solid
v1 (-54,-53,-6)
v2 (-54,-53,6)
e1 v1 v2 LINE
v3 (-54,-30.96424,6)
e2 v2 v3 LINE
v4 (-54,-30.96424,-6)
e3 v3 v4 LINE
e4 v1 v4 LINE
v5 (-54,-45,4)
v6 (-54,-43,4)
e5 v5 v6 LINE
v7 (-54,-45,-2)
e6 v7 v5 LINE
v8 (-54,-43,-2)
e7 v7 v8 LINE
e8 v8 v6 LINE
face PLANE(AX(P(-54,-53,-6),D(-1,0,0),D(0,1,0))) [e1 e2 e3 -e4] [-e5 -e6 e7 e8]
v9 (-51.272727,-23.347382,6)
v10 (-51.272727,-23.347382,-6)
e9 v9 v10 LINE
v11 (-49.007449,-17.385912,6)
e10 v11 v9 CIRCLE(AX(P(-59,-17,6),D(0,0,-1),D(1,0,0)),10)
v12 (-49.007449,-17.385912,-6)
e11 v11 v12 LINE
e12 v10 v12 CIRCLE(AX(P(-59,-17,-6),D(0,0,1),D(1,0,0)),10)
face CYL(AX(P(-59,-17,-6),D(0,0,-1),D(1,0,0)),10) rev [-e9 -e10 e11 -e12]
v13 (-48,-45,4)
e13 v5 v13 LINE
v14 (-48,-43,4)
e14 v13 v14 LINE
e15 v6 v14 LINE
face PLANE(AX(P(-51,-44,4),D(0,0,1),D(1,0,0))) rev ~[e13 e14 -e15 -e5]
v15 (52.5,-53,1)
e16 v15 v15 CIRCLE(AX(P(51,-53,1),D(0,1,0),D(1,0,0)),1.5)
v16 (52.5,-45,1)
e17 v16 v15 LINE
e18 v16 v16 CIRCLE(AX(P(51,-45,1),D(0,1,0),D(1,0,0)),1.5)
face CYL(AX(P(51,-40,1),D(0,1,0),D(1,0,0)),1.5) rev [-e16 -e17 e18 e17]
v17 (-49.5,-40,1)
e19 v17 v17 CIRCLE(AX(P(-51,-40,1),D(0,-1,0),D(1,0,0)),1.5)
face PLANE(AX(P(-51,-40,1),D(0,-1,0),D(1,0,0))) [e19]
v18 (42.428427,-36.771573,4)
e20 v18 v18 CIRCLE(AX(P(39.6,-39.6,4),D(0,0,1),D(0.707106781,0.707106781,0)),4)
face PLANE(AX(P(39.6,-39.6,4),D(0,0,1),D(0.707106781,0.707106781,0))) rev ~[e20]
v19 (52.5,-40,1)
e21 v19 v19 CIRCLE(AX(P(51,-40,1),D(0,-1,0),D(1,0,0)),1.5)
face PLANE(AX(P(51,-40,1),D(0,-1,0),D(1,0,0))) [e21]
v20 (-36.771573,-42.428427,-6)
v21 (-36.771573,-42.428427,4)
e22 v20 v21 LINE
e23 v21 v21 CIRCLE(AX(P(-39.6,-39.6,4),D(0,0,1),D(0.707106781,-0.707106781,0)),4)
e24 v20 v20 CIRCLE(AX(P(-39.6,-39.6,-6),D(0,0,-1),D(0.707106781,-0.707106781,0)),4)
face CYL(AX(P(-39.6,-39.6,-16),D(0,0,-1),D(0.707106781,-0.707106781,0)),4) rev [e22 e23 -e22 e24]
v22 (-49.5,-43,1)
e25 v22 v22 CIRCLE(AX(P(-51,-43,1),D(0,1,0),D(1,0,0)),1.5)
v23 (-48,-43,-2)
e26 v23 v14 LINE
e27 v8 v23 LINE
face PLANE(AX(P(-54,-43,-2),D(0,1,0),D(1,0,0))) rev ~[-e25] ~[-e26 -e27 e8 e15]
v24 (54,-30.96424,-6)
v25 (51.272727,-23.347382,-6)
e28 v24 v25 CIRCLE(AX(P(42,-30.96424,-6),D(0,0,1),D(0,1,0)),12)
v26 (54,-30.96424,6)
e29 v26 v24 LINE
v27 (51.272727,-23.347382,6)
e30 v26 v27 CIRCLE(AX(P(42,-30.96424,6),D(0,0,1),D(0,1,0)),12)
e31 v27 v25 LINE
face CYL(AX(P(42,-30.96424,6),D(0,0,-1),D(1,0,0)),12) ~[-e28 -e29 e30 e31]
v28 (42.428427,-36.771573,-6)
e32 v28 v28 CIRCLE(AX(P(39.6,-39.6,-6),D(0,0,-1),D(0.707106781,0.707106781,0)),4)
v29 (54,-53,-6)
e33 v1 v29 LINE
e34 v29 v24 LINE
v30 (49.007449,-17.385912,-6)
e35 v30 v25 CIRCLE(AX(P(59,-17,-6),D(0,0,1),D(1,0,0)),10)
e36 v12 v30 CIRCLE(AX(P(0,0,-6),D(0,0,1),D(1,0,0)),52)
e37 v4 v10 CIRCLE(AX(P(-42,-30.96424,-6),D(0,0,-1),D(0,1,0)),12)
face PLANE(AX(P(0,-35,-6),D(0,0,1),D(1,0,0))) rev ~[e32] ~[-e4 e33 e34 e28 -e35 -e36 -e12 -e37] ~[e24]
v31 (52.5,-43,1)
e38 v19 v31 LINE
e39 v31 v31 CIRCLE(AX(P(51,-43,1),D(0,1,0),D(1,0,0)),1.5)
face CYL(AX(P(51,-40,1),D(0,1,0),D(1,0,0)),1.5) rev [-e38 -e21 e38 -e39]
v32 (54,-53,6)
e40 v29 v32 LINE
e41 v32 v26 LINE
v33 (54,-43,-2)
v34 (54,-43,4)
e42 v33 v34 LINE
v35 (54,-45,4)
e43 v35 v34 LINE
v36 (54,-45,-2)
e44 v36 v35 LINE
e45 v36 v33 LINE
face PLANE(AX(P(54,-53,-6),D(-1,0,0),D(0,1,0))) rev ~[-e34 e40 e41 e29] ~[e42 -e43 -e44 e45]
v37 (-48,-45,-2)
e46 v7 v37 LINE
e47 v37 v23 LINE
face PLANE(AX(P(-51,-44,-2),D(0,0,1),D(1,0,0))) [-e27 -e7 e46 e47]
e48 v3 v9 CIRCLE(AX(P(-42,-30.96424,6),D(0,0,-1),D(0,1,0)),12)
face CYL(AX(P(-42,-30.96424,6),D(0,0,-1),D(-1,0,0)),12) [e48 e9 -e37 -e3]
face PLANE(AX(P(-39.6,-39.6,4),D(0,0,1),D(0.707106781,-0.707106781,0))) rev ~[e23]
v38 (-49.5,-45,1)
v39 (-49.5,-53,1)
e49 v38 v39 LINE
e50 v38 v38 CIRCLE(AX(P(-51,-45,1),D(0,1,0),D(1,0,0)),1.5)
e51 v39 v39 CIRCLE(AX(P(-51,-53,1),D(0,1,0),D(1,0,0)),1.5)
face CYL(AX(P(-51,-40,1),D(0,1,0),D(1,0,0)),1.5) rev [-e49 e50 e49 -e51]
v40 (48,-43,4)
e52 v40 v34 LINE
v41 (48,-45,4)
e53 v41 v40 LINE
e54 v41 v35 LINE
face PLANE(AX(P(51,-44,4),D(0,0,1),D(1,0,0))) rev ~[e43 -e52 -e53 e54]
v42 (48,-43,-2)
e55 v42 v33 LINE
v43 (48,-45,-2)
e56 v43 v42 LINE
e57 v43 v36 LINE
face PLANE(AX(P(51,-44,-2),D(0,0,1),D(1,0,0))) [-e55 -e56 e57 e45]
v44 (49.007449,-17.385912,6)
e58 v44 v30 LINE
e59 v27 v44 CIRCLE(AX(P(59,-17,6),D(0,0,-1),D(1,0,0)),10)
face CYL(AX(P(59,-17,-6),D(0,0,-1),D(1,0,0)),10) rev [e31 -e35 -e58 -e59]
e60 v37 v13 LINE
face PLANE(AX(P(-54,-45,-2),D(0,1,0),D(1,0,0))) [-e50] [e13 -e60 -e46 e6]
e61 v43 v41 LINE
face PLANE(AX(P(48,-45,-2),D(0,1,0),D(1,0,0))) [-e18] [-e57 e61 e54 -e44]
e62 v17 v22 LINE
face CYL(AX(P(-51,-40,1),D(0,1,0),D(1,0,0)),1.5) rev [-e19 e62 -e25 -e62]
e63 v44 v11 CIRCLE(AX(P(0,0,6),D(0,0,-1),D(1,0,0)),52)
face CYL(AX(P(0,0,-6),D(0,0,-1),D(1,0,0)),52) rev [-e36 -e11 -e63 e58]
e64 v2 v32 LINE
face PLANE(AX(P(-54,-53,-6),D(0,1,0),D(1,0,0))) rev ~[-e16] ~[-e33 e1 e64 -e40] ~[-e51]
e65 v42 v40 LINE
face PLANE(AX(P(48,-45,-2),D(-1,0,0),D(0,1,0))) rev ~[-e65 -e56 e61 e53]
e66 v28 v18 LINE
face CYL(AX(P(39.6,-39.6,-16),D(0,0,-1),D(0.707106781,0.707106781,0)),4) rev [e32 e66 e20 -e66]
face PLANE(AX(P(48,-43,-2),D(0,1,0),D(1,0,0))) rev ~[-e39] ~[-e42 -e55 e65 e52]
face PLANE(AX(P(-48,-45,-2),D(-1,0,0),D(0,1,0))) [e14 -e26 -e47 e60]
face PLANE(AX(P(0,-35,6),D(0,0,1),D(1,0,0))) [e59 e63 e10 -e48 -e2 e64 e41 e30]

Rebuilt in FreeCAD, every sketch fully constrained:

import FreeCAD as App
import Part
import Sketcher

V = App.Vector
Q = App.Units.Quantity


def edges_at(feature, points):
    """Names of the edges that pass closest to the given points."""
    edges = feature.Shape.Edges
    near = lambda p: min(range(len(edges)), key=lambda i: edges[i].distToShape(Part.Vertex(*p))[0])
    return sorted({f"Edge{near(p) + 1}" for p in points})

doc = App.newDocument("Part")
params = doc.addObject("Spreadsheet::Sheet", "Params")
for row, (alias, value) in enumerate([
    ("sketch1_diameter", "3 mm"),
    ("pad1_length", "20 mm"),
    ("sketch2_diameter", "3 mm"),
    ("pad2_length", "20 mm"),
    ("sketch3_diameter", "3 mm"),
    ("pad3_length", "20 mm"),
    ("sketch4_diameter", "3 mm"),
    ("pad4_length", "20 mm"),
    ("sketch5_width", "6 mm"),
    ("sketch5_height", "2 mm"),
    ("pad5_length", "6 mm"),
    ("sketch6_width", "6 mm"),
    ("sketch6_height", "2 mm"),
    ("pad6_length", "6 mm"),
    ("sketch7_width", "6 mm"),
    ("sketch7_height", "2 mm"),
    ("pad7_length", "6 mm"),
    ("sketch8_width", "6 mm"),
    ("sketch8_height", "2 mm"),
    ("pad8_length", "6 mm"),
    ("sketch9_diameter", "8 mm"),
    ("pad9_length", "20 mm"),
    ("sketch10_diameter", "8 mm"),
    ("pad10_length", "20 mm"),
    ("sketch11_diameter", "20 mm"),
    ("pad11_length", "40 mm"),
    ("sketch12_diameter", "20 mm"),
    ("pad12_length", "40 mm"),
    ("sketch13_diameter", "104 mm"),
    ("pad13_length", "20 mm"),
    ("sketch14_width", "108 mm"),
    ("sketch14_height", "36 mm"),
    ("pad14_length", "12 mm"),
    ("fillet_radius", "12 mm"),
], start=1):
    params.set(f"A{row}", alias)
    params.set(f"B{row}", "=" + value)
    params.setAlias(f"B{row}", alias)

body = doc.addObject("PartDesign::Body", "Body")

# Sketch on XZ plane
sketch1 = body.newObject("Sketcher::SketchObject", "Sketch")
sketch1.AttachmentSupport = (doc.getObject("XZ_Plane"), [""])
sketch1.MapMode = "FlatFace"
sketch1.AttachmentOffset = App.Placement(V(0, 0, 40), App.Rotation())
sketch1.addGeometry(Part.Circle(V(20, -5, 0), V(0, 0, 1), 1.5), False)
sketch1.addConstraint([
    Sketcher.Constraint("Diameter", 0, Q("3 mm")),
    Sketcher.Constraint("DistanceX", -1, 1, 0, 3, Q("20 mm")),
    Sketcher.Constraint("DistanceY", 0, 3, -1, 1, Q("5 mm")),
])
sketch1.setExpression("Constraints[0]", "Params.sketch1_diameter")
pad1 = body.newObject("PartDesign::Pad", "Pad")
pad1.Profile = sketch1
pad1.setExpression("Length", "Params.pad1_length")
body2 = doc.addObject("PartDesign::Body", "Body001")

# Sketch on XZ plane
sketch2 = body2.newObject("Sketcher::SketchObject", "Sketch001")
sketch2.AttachmentSupport = (doc.getObject("XZ_Plane001"), [""])
sketch2.MapMode = "FlatFace"
sketch2.AttachmentOffset = App.Placement(V(0, 0, 40), App.Rotation())
sketch2.addGeometry(Part.Circle(V(51, 7, 0), V(0, 0, 1), 1.5), False)
sketch2.addConstraint([
    Sketcher.Constraint("Diameter", 0, Q("3 mm")),
    Sketcher.Constraint("DistanceX", -1, 1, 0, 3, Q("51 mm")),
    Sketcher.Constraint("DistanceY", -1, 1, 0, 3, Q("7 mm")),
])
sketch2.setExpression("Constraints[0]", "Params.sketch2_diameter")
pad2 = body2.newObject("PartDesign::Pad", "Pad001")
pad2.Profile = sketch2
pad2.setExpression("Length", "Params.pad2_length")
body3 = doc.addObject("PartDesign::Body", "Body002")

# Sketch on XZ plane
sketch3 = body3.newObject("Sketcher::SketchObject", "Sketch002")
sketch3.AttachmentSupport = (doc.getObject("XZ_Plane002"), [""])
sketch3.MapMode = "FlatFace"
sketch3.AttachmentOffset = App.Placement(V(0, 0, 40), App.Rotation())
sketch3.addGeometry(Part.Circle(V(-51, 7, 0), V(0, 0, 1), 1.5), False)
sketch3.addConstraint([
    Sketcher.Constraint("Diameter", 0, Q("3 mm")),
    Sketcher.Constraint("DistanceX", 0, 3, -1, 1, Q("51 mm")),
    Sketcher.Constraint("DistanceY", -1, 1, 0, 3, Q("7 mm")),
])
sketch3.setExpression("Constraints[0]", "Params.sketch3_diameter")
pad3 = body3.newObject("PartDesign::Pad", "Pad002")
pad3.Profile = sketch3
pad3.setExpression("Length", "Params.pad3_length")
body4 = doc.addObject("PartDesign::Body", "Body003")
body4.AllowCompound = True

# Sketch on XZ plane
sketch4 = body4.newObject("Sketcher::SketchObject", "Sketch003")
sketch4.AttachmentSupport = (doc.getObject("XZ_Plane003"), [""])
sketch4.MapMode = "FlatFace"
sketch4.AttachmentOffset = App.Placement(V(0, 0, 40), App.Rotation())
sketch4.addGeometry(Part.Circle(V(-20, -5, 0), V(0, 0, 1), 1.5), False)
sketch4.addConstraint([
    Sketcher.Constraint("Diameter", 0, Q("3 mm")),
    Sketcher.Constraint("DistanceX", 0, 3, -1, 1, Q("20 mm")),
    Sketcher.Constraint("DistanceY", 0, 3, -1, 1, Q("5 mm")),
])
sketch4.setExpression("Constraints[0]", "Params.sketch4_diameter")
pad4 = body4.newObject("PartDesign::Pad", "Pad003")
pad4.Profile = sketch4
pad4.setExpression("Length", "Params.pad4_length")
doc.recompute()

boolean = body4.newObject("PartDesign::Boolean", "Boolean")
boolean.Type = "Fuse"
boolean.addObjects([body])
doc.recompute()

boolean2 = body4.newObject("PartDesign::Boolean", "Boolean001")
boolean2.Type = "Fuse"
boolean2.addObjects([body2])
doc.recompute()

boolean3 = body4.newObject("PartDesign::Boolean", "Boolean002")
boolean3.Type = "Fuse"
boolean3.addObjects([body3])
body5 = doc.addObject("PartDesign::Body", "Body004")

# Sketch on XY plane
sketch5 = body5.newObject("Sketcher::SketchObject", "Sketch004")
sketch5.AttachmentSupport = (doc.getObject("XY_Plane004"), [""])
sketch5.MapMode = "FlatFace"
sketch5.AttachmentOffset = App.Placement(V(0, 0, -8), App.Rotation())
sketch5.addGeometry([
    Part.LineSegment(V(17, -45, 0), V(17, -47, 0)),
    Part.LineSegment(V(17, -47, 0), V(23, -47, 0)),
    Part.LineSegment(V(23, -47, 0), V(23, -45, 0)),
    Part.LineSegment(V(23, -45, 0), V(17, -45, 0)),
], False)
sketch5.addConstraint([
    Sketcher.Constraint("Coincident", 0, 2, 1, 1),
    Sketcher.Constraint("Coincident", 1, 2, 2, 1),
    Sketcher.Constraint("Coincident", 2, 2, 3, 1),
    Sketcher.Constraint("Coincident", 3, 2, 0, 1),
    Sketcher.Constraint("Vertical", 0),
    Sketcher.Constraint("Horizontal", 1),
    Sketcher.Constraint("Vertical", 2),
    Sketcher.Constraint("Horizontal", 3),
    Sketcher.Constraint("DistanceX", 1, 1, 1, 2, Q("6 mm")),
    Sketcher.Constraint("DistanceY", 0, 2, 0, 1, Q("2 mm")),
    Sketcher.Constraint("DistanceX", -1, 1, 0, 2, Q("17 mm")),
    Sketcher.Constraint("DistanceY", 0, 2, -1, 1, Q("47 mm")),
])
sketch5.setExpression("Constraints[8]", "Params.sketch5_width")
sketch5.setExpression("Constraints[9]", "Params.sketch5_height")
pad5 = body5.newObject("PartDesign::Pad", "Pad004")
pad5.Profile = sketch5
pad5.setExpression("Length", "Params.pad5_length")
body6 = doc.addObject("PartDesign::Body", "Body005")

# Sketch on XY plane
sketch6 = body6.newObject("Sketcher::SketchObject", "Sketch005")
sketch6.AttachmentSupport = (doc.getObject("XY_Plane005"), [""])
sketch6.MapMode = "FlatFace"
sketch6.AttachmentOffset = App.Placement(V(0, 0, 4), App.Rotation())
sketch6.addGeometry([
    Part.LineSegment(V(48, -43, 0), V(48, -45, 0)),
    Part.LineSegment(V(48, -45, 0), V(54, -45, 0)),
    Part.LineSegment(V(54, -45, 0), V(54, -43, 0)),
    Part.LineSegment(V(54, -43, 0), V(48, -43, 0)),
], False)
sketch6.addConstraint([
    Sketcher.Constraint("Coincident", 0, 2, 1, 1),
    Sketcher.Constraint("Coincident", 1, 2, 2, 1),
    Sketcher.Constraint("Coincident", 2, 2, 3, 1),
    Sketcher.Constraint("Coincident", 3, 2, 0, 1),
    Sketcher.Constraint("Vertical", 0),
    Sketcher.Constraint("Horizontal", 1),
    Sketcher.Constraint("Vertical", 2),
    Sketcher.Constraint("Horizontal", 3),
    Sketcher.Constraint("DistanceX", 1, 1, 1, 2, Q("6 mm")),
    Sketcher.Constraint("DistanceY", 0, 2, 0, 1, Q("2 mm")),
    Sketcher.Constraint("DistanceX", -1, 1, 0, 2, Q("48 mm")),
    Sketcher.Constraint("DistanceY", 0, 2, -1, 1, Q("45 mm")),
])
sketch6.setExpression("Constraints[8]", "Params.sketch6_width")
sketch6.setExpression("Constraints[9]", "Params.sketch6_height")
pad6 = body6.newObject("PartDesign::Pad", "Pad005")
pad6.Profile = sketch6
pad6.setExpression("Length", "Params.pad6_length")
body7 = doc.addObject("PartDesign::Body", "Body006")

# Sketch on XY plane
sketch7 = body7.newObject("Sketcher::SketchObject", "Sketch006")
sketch7.AttachmentSupport = (doc.getObject("XY_Plane006"), [""])
sketch7.MapMode = "FlatFace"
sketch7.AttachmentOffset = App.Placement(V(0, 0, 4), App.Rotation())
sketch7.addGeometry([
    Part.LineSegment(V(-54, -43, 0), V(-54, -45, 0)),
    Part.LineSegment(V(-54, -45, 0), V(-48, -45, 0)),
    Part.LineSegment(V(-48, -45, 0), V(-48, -43, 0)),
    Part.LineSegment(V(-48, -43, 0), V(-54, -43, 0)),
], False)
sketch7.addConstraint([
    Sketcher.Constraint("Coincident", 0, 2, 1, 1),
    Sketcher.Constraint("Coincident", 1, 2, 2, 1),
    Sketcher.Constraint("Coincident", 2, 2, 3, 1),
    Sketcher.Constraint("Coincident", 3, 2, 0, 1),
    Sketcher.Constraint("Vertical", 0),
    Sketcher.Constraint("Horizontal", 1),
    Sketcher.Constraint("Vertical", 2),
    Sketcher.Constraint("Horizontal", 3),
    Sketcher.Constraint("DistanceX", 1, 1, 1, 2, Q("6 mm")),
    Sketcher.Constraint("DistanceY", 0, 2, 0, 1, Q("2 mm")),
    Sketcher.Constraint("DistanceX", 0, 2, -1, 1, Q("54 mm")),
    Sketcher.Constraint("DistanceY", 0, 2, -1, 1, Q("45 mm")),
])
sketch7.setExpression("Constraints[8]", "Params.sketch7_width")
sketch7.setExpression("Constraints[9]", "Params.sketch7_height")
pad7 = body7.newObject("PartDesign::Pad", "Pad006")
pad7.Profile = sketch7
pad7.setExpression("Length", "Params.pad7_length")
body8 = doc.addObject("PartDesign::Body", "Body007")
body8.AllowCompound = True

# Sketch on XY plane
sketch8 = body8.newObject("Sketcher::SketchObject", "Sketch007")
sketch8.AttachmentSupport = (doc.getObject("XY_Plane007"), [""])
sketch8.MapMode = "FlatFace"
sketch8.AttachmentOffset = App.Placement(V(0, 0, -8), App.Rotation())
sketch8.addGeometry([
    Part.LineSegment(V(-23, -45, 0), V(-23, -47, 0)),
    Part.LineSegment(V(-23, -47, 0), V(-17, -47, 0)),
    Part.LineSegment(V(-17, -47, 0), V(-17, -45, 0)),
    Part.LineSegment(V(-17, -45, 0), V(-23, -45, 0)),
], False)
sketch8.addConstraint([
    Sketcher.Constraint("Coincident", 0, 2, 1, 1),
    Sketcher.Constraint("Coincident", 1, 2, 2, 1),
    Sketcher.Constraint("Coincident", 2, 2, 3, 1),
    Sketcher.Constraint("Coincident", 3, 2, 0, 1),
    Sketcher.Constraint("Vertical", 0),
    Sketcher.Constraint("Horizontal", 1),
    Sketcher.Constraint("Vertical", 2),
    Sketcher.Constraint("Horizontal", 3),
    Sketcher.Constraint("DistanceX", 1, 1, 1, 2, Q("6 mm")),
    Sketcher.Constraint("DistanceY", 0, 2, 0, 1, Q("2 mm")),
    Sketcher.Constraint("DistanceX", 0, 2, -1, 1, Q("23 mm")),
    Sketcher.Constraint("DistanceY", 0, 2, -1, 1, Q("47 mm")),
])
sketch8.setExpression("Constraints[8]", "Params.sketch8_width")
sketch8.setExpression("Constraints[9]", "Params.sketch8_height")
pad8 = body8.newObject("PartDesign::Pad", "Pad007")
pad8.Profile = sketch8
pad8.setExpression("Length", "Params.pad8_length")
doc.recompute()

boolean4 = body8.newObject("PartDesign::Boolean", "Boolean003")
boolean4.Type = "Fuse"
boolean4.addObjects([body5])
doc.recompute()

boolean5 = body8.newObject("PartDesign::Boolean", "Boolean004")
boolean5.Type = "Fuse"
boolean5.addObjects([body6])
doc.recompute()

boolean6 = body8.newObject("PartDesign::Boolean", "Boolean005")
boolean6.Type = "Fuse"
boolean6.addObjects([body7])
body9 = doc.addObject("PartDesign::Body", "Body008")

# Sketch on XY plane
sketch9 = body9.newObject("Sketcher::SketchObject", "Sketch008")
sketch9.AttachmentSupport = (doc.getObject("XY_Plane008"), [""])
sketch9.MapMode = "FlatFace"
sketch9.addGeometry(Part.Circle(V(0, 0, 0), V(0, 0, 1), 4), False)
sketch9.addConstraint([
    Sketcher.Constraint("Coincident", 0, 3, -1, 1),
    Sketcher.Constraint("Diameter", 0, Q("8 mm")),
])
sketch9.setExpression("Constraints[1]", "Params.sketch9_diameter")
pad9 = body9.newObject("PartDesign::Pad", "Pad008")
pad9.Profile = sketch9
pad9.setExpression("Length", "Params.pad9_length")
body10 = doc.addObject("PartDesign::Body", "Body009")
doc.recompute()

body9.Placement = App.Placement(V(39.6, -39.6, -10), App.Rotation(V(0, 0, 1), 45))
boolean7 = body10.newObject("PartDesign::Boolean", "Boolean006")
boolean7.Type = "Fuse"
boolean7.addObjects([body9])
body11 = doc.addObject("PartDesign::Body", "Body010")

# Sketch on XY plane
sketch10 = body11.newObject("Sketcher::SketchObject", "Sketch009")
sketch10.AttachmentSupport = (doc.getObject("XY_Plane010"), [""])
sketch10.MapMode = "FlatFace"
sketch10.addGeometry(Part.Circle(V(0, 0, 0), V(0, 0, 1), 4), False)
sketch10.addConstraint([
    Sketcher.Constraint("Coincident", 0, 3, -1, 1),
    Sketcher.Constraint("Diameter", 0, Q("8 mm")),
])
sketch10.setExpression("Constraints[1]", "Params.sketch10_diameter")
pad10 = body11.newObject("PartDesign::Pad", "Pad009")
pad10.Profile = sketch10
pad10.setExpression("Length", "Params.pad10_length")
body12 = doc.addObject("PartDesign::Body", "Body011")
body12.AllowCompound = True
doc.recompute()

body11.Placement = App.Placement(V(-39.6, -39.6, -10), App.Rotation(V(0, 0, -1), 45))
boolean8 = body12.newObject("PartDesign::Boolean", "Boolean007")
boolean8.Type = "Fuse"
boolean8.addObjects([body11])
doc.recompute()

boolean9 = body12.newObject("PartDesign::Boolean", "Boolean008")
boolean9.Type = "Fuse"
boolean9.addObjects([body10])
body13 = doc.addObject("PartDesign::Body", "Body012")

# Sketch on XY plane
sketch11 = body13.newObject("Sketcher::SketchObject", "Sketch010")
sketch11.AttachmentSupport = (doc.getObject("XY_Plane012"), [""])
sketch11.MapMode = "FlatFace"
sketch11.addGeometry(Part.Circle(V(-59, -17, 0), V(0, 0, 1), 10), False)
sketch11.addConstraint([
    Sketcher.Constraint("Diameter", 0, Q("20 mm")),
    Sketcher.Constraint("DistanceX", 0, 3, -1, 1, Q("59 mm")),
    Sketcher.Constraint("DistanceY", 0, 3, -1, 1, Q("17 mm")),
])
sketch11.setExpression("Constraints[0]", "Params.sketch11_diameter")
pad11 = body13.newObject("PartDesign::Pad", "Pad010")
pad11.Profile = sketch11
pad11.setExpression("Length", "Params.pad11_length")
body14 = doc.addObject("PartDesign::Body", "Body013")
body14.AllowCompound = True

# Sketch on XY plane
sketch12 = body14.newObject("Sketcher::SketchObject", "Sketch011")
sketch12.AttachmentSupport = (doc.getObject("XY_Plane013"), [""])
sketch12.MapMode = "FlatFace"
sketch12.addGeometry(Part.Circle(V(59, -17, 0), V(0, 0, 1), 10), False)
sketch12.addConstraint([
    Sketcher.Constraint("Diameter", 0, Q("20 mm")),
    Sketcher.Constraint("DistanceX", -1, 1, 0, 3, Q("59 mm")),
    Sketcher.Constraint("DistanceY", 0, 3, -1, 1, Q("17 mm")),
])
sketch12.setExpression("Constraints[0]", "Params.sketch12_diameter")
pad12 = body14.newObject("PartDesign::Pad", "Pad011")
pad12.Profile = sketch12
pad12.setExpression("Length", "Params.pad12_length")
doc.recompute()

boolean10 = body14.newObject("PartDesign::Boolean", "Boolean009")
boolean10.Type = "Fuse"
boolean10.addObjects([body13])
body15 = doc.addObject("PartDesign::Body", "Body014")

# Sketch on XY plane
sketch13 = body15.newObject("Sketcher::SketchObject", "Sketch012")
sketch13.AttachmentSupport = (doc.getObject("XY_Plane014"), [""])
sketch13.MapMode = "FlatFace"
sketch13.AttachmentOffset = App.Placement(V(0, 0, 20), App.Rotation())
sketch13.addGeometry(Part.Circle(V(0, 0, 0), V(0, 0, 1), 52), False)
sketch13.addConstraint([
    Sketcher.Constraint("Coincident", 0, 3, -1, 1),
    Sketcher.Constraint("Diameter", 0, Q("104 mm")),
])
sketch13.setExpression("Constraints[1]", "Params.sketch13_diameter")
pad13 = body15.newObject("PartDesign::Pad", "Pad012")
pad13.Profile = sketch13
pad13.setExpression("Length", "Params.pad13_length")
body16 = doc.addObject("PartDesign::Body", "Body015")

# Sketch on XY plane
sketch14 = body16.newObject("Sketcher::SketchObject", "Sketch013")
sketch14.AttachmentSupport = (doc.getObject("XY_Plane015"), [""])
sketch14.MapMode = "FlatFace"
sketch14.AttachmentOffset = App.Placement(V(0, 0, 20), App.Rotation())
sketch14.addGeometry([
    Part.LineSegment(V(-54, -17, 0), V(-54, -53, 0)),
    Part.LineSegment(V(-54, -53, 0), V(54, -53, 0)),
    Part.LineSegment(V(54, -53, 0), V(54, -17, 0)),
    Part.LineSegment(V(54, -17, 0), V(-54, -17, 0)),
], False)
sketch14.addConstraint([
    Sketcher.Constraint("Coincident", 0, 2, 1, 1),
    Sketcher.Constraint("Coincident", 1, 2, 2, 1),
    Sketcher.Constraint("Coincident", 2, 2, 3, 1),
    Sketcher.Constraint("Coincident", 3, 2, 0, 1),
    Sketcher.Constraint("Vertical", 0),
    Sketcher.Constraint("Horizontal", 1),
    Sketcher.Constraint("Vertical", 2),
    Sketcher.Constraint("Horizontal", 3),
    Sketcher.Constraint("DistanceX", 1, 1, 1, 2, Q("108 mm")),
    Sketcher.Constraint("DistanceY", 0, 2, 0, 1, Q("36 mm")),
    Sketcher.Constraint("DistanceX", 0, 2, -1, 1, Q("54 mm")),
    Sketcher.Constraint("DistanceY", 0, 2, -1, 1, Q("53 mm")),
])
sketch14.setExpression("Constraints[8]", "Params.sketch14_width")
sketch14.setExpression("Constraints[9]", "Params.sketch14_height")
pad14 = body16.newObject("PartDesign::Pad", "Pad013")
pad14.Profile = sketch14
pad14.setExpression("Length", "Params.pad14_length")
doc.recompute()

boolean11 = body16.newObject("PartDesign::Boolean", "Boolean010")
boolean11.Type = "Cut"
boolean11.addObjects([body15])
body17 = doc.addObject("PartDesign::Body", "Body016")
doc.recompute()

body16.Placement = App.Placement(V(0, 0, -20), App.Rotation(V(0, 0, 1), 0))
boolean12 = body17.newObject("PartDesign::Boolean", "Boolean011")
boolean12.Type = "Fuse"
boolean12.addObjects([body16])
doc.recompute()

boolean13 = body17.newObject("PartDesign::Boolean", "Boolean012")
boolean13.Type = "Cut"
boolean13.addObjects([body14])
doc.recompute()

boolean14 = body17.newObject("PartDesign::Boolean", "Boolean013")
boolean14.Type = "Cut"
boolean14.addObjects([body12])
doc.recompute()

boolean15 = body17.newObject("PartDesign::Boolean", "Boolean014")
boolean15.Type = "Cut"
boolean15.addObjects([body8])
doc.recompute()

boolean16 = body17.newObject("PartDesign::Boolean", "Boolean015")
boolean16.Type = "Cut"
boolean16.addObjects([body4])
doc.recompute()

fillet = body17.newObject("PartDesign::Fillet", "Fillet")
fillet.Base = (boolean16, edges_at(boolean16, [(-54, -25.66, 6), (54, -25.66, 6)]))
fillet.setExpression("Radius", "Params.fillet_radius")
body18 = doc.addObject("PartDesign::Body", "Body017")
doc.recompute()

body17.Placement = App.Placement(V(0, 0, -6), App.Rotation(V(0, 0, 1), 0))
boolean17 = body18.newObject("PartDesign::Boolean", "Boolean016")
boolean17.Type = "Fuse"
boolean17.addObjects([body17])

doc.recompute()
